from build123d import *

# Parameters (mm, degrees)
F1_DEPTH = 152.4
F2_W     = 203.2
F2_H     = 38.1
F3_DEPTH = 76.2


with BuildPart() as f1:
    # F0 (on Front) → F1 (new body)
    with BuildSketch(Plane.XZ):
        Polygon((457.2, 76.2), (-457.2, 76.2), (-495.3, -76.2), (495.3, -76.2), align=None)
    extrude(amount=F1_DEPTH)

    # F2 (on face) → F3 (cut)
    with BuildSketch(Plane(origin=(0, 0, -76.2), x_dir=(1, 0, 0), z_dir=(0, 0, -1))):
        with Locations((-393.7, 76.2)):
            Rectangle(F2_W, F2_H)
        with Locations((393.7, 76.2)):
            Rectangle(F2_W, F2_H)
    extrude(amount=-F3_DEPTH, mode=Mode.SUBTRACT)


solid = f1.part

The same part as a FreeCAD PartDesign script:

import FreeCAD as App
import Part
import Sketcher
Q = App.Units.Quantity

doc = App.newDocument("Part")
params = doc.addObject("Spreadsheet::Sheet", "Params")
for row, (alias, value) in enumerate([
    ("sketch1_width", "36 in"),
    ("sketch1_width2", "39 in"),
    ("pad1_length", "6 in"),
    ("sketch2_width", "8 in"),
    ("sketch2_height", "1.5 in"),
    ("pocket1_length", "3 in"),
], start=1):
    params.set(f"A{row}", alias)
    params.set(f"B{row}", "=" + value)
    params.setAlias(f"B{row}", alias)

body = doc.addObject("PartDesign::Body", "Body")

# Sketch on XZ plane
sketch1 = body.newObject("Sketcher::SketchObject", "Sketch")
sketch1.AttachmentSupport = (doc.getObject("XZ_Plane"), [""])
sketch1.MapMode = "FlatFace"
sketch1.addGeometry([
    Part.LineSegment(App.Vector(457.2, 76.2, 0), App.Vector(-457.2, 76.2, 0)),
    Part.LineSegment(App.Vector(-457.2, 76.2, 0), App.Vector(-495.3, -76.2, 0)),
    Part.LineSegment(App.Vector(-495.3, -76.2, 0), App.Vector(495.3, -76.2, 0)),
    Part.LineSegment(App.Vector(495.3, -76.2, 0), App.Vector(457.2, 76.2, 0)),
], False)
sketch1.addConstraint([
    Sketcher.Constraint("Coincident", 0, 2, 1, 1),
    Sketcher.Constraint("Coincident", 1, 2, 2, 1),
    Sketcher.Constraint("Coincident", 2, 2, 3, 1),
    Sketcher.Constraint("Coincident", 3, 2, 0, 1),
    Sketcher.Constraint("Horizontal", 0),
    Sketcher.Constraint("Horizontal", 2),
    Sketcher.Constraint("Equal", 1, 3),
    Sketcher.Constraint("DistanceX", 0, 2, 0, 1, Q("36 in")),
    Sketcher.Constraint("DistanceX", 2, 1, 2, 2, Q("39 in")),
    Sketcher.Constraint("DistanceX", 0, 2, -1, 1, Q("18 in")),
    Sketcher.Constraint("DistanceY", -1, 1, 0, 2, Q("3 in")),
    Sketcher.Constraint("DistanceY", 1, 2, -1, 1, Q("3 in")),
])
sketch1.setExpression("Constraints[7]", "Params.sketch1_width")
sketch1.setExpression("Constraints[8]", "Params.sketch1_width2")
pad1 = body.newObject("PartDesign::Pad", "Pad")
pad1.Profile = sketch1
pad1.setExpression("Length", "Params.pad1_length")

# Sketch on XY plane
sketch2 = body.newObject("Sketcher::SketchObject", "Sketch001")
sketch2.AttachmentSupport = (doc.getObject("XY_Plane"), [""])
sketch2.MapMode = "FlatFace"
sketch2.AttachmentOffset = App.Placement(App.Vector(0, 0, -3 * 25.4), App.Rotation())
sketch2.addGeometry([
    Part.LineSegment(App.Vector(-495.3, -95.25, 0), App.Vector(-495.3, -57.15, 0)),  # 0
    Part.LineSegment(App.Vector(-495.3, -57.15, 0), App.Vector(-292.1, -57.15, 0)),  # 1
    Part.LineSegment(App.Vector(-292.1, -57.15, 0), App.Vector(-292.1, -95.25, 0)),  # 2
    Part.LineSegment(App.Vector(-292.1, -95.25, 0), App.Vector(-495.3, -95.25, 0)),  # 3
    Part.LineSegment(App.Vector(292.1, -95.25, 0), App.Vector(292.1, -57.15, 0)),  # 4
    Part.LineSegment(App.Vector(292.1, -57.15, 0), App.Vector(495.3, -57.15, 0)),  # 5
    Part.LineSegment(App.Vector(495.3, -57.15, 0), App.Vector(495.3, -95.25, 0)),  # 6
    Part.LineSegment(App.Vector(495.3, -95.25, 0), App.Vector(292.1, -95.25, 0)),  # 7
], False)
sketch2.addConstraint([
    Sketcher.Constraint("Coincident", 0, 2, 1, 1),
    Sketcher.Constraint("Coincident", 1, 2, 2, 1),
    Sketcher.Constraint("Coincident", 2, 2, 3, 1),
    Sketcher.Constraint("Coincident", 3, 2, 0, 1),
    Sketcher.Constraint("Coincident", 4, 2, 5, 1),
    Sketcher.Constraint("Coincident", 5, 2, 6, 1),
    Sketcher.Constraint("Coincident", 6, 2, 7, 1),
    Sketcher.Constraint("Coincident", 7, 2, 4, 1),
    Sketcher.Constraint("Vertical", 0),
    Sketcher.Constraint("Horizontal", 1),
    Sketcher.Constraint("Vertical", 2),
    Sketcher.Constraint("Horizontal", 3),
    Sketcher.Constraint("Vertical", 4),
    Sketcher.Constraint("Horizontal", 5),
    Sketcher.Constraint("Vertical", 6),
    Sketcher.Constraint("Horizontal", 7),
    Sketcher.Constraint("Symmetric", 1, 2, 4, 2, -2),
    Sketcher.Constraint("Symmetric", 3, 2, 6, 2, -2),
    Sketcher.Constraint("DistanceX", 1, 1, 1, 2, Q("8 in")),
    Sketcher.Constraint("DistanceY", 0, 1, 0, 2, Q("1.5 in")),
    Sketcher.Constraint("DistanceX", 1, 2, 4, 2, Q("23 in")),
    Sketcher.Constraint("DistanceY", 0, 2, -1, 1, Q("2.25 in")),
])
sketch2.setExpression("Constraints[18]", "Params.sketch2_width")
sketch2.setExpression("Constraints[19]", "Params.sketch2_height")
pocket1 = body.newObject("PartDesign::Pocket", "Pocket")
pocket1.Profile = sketch2
pocket1.setExpression("Length", "Params.pocket1_length")
pocket1.Reversed = True

doc.recompute()
